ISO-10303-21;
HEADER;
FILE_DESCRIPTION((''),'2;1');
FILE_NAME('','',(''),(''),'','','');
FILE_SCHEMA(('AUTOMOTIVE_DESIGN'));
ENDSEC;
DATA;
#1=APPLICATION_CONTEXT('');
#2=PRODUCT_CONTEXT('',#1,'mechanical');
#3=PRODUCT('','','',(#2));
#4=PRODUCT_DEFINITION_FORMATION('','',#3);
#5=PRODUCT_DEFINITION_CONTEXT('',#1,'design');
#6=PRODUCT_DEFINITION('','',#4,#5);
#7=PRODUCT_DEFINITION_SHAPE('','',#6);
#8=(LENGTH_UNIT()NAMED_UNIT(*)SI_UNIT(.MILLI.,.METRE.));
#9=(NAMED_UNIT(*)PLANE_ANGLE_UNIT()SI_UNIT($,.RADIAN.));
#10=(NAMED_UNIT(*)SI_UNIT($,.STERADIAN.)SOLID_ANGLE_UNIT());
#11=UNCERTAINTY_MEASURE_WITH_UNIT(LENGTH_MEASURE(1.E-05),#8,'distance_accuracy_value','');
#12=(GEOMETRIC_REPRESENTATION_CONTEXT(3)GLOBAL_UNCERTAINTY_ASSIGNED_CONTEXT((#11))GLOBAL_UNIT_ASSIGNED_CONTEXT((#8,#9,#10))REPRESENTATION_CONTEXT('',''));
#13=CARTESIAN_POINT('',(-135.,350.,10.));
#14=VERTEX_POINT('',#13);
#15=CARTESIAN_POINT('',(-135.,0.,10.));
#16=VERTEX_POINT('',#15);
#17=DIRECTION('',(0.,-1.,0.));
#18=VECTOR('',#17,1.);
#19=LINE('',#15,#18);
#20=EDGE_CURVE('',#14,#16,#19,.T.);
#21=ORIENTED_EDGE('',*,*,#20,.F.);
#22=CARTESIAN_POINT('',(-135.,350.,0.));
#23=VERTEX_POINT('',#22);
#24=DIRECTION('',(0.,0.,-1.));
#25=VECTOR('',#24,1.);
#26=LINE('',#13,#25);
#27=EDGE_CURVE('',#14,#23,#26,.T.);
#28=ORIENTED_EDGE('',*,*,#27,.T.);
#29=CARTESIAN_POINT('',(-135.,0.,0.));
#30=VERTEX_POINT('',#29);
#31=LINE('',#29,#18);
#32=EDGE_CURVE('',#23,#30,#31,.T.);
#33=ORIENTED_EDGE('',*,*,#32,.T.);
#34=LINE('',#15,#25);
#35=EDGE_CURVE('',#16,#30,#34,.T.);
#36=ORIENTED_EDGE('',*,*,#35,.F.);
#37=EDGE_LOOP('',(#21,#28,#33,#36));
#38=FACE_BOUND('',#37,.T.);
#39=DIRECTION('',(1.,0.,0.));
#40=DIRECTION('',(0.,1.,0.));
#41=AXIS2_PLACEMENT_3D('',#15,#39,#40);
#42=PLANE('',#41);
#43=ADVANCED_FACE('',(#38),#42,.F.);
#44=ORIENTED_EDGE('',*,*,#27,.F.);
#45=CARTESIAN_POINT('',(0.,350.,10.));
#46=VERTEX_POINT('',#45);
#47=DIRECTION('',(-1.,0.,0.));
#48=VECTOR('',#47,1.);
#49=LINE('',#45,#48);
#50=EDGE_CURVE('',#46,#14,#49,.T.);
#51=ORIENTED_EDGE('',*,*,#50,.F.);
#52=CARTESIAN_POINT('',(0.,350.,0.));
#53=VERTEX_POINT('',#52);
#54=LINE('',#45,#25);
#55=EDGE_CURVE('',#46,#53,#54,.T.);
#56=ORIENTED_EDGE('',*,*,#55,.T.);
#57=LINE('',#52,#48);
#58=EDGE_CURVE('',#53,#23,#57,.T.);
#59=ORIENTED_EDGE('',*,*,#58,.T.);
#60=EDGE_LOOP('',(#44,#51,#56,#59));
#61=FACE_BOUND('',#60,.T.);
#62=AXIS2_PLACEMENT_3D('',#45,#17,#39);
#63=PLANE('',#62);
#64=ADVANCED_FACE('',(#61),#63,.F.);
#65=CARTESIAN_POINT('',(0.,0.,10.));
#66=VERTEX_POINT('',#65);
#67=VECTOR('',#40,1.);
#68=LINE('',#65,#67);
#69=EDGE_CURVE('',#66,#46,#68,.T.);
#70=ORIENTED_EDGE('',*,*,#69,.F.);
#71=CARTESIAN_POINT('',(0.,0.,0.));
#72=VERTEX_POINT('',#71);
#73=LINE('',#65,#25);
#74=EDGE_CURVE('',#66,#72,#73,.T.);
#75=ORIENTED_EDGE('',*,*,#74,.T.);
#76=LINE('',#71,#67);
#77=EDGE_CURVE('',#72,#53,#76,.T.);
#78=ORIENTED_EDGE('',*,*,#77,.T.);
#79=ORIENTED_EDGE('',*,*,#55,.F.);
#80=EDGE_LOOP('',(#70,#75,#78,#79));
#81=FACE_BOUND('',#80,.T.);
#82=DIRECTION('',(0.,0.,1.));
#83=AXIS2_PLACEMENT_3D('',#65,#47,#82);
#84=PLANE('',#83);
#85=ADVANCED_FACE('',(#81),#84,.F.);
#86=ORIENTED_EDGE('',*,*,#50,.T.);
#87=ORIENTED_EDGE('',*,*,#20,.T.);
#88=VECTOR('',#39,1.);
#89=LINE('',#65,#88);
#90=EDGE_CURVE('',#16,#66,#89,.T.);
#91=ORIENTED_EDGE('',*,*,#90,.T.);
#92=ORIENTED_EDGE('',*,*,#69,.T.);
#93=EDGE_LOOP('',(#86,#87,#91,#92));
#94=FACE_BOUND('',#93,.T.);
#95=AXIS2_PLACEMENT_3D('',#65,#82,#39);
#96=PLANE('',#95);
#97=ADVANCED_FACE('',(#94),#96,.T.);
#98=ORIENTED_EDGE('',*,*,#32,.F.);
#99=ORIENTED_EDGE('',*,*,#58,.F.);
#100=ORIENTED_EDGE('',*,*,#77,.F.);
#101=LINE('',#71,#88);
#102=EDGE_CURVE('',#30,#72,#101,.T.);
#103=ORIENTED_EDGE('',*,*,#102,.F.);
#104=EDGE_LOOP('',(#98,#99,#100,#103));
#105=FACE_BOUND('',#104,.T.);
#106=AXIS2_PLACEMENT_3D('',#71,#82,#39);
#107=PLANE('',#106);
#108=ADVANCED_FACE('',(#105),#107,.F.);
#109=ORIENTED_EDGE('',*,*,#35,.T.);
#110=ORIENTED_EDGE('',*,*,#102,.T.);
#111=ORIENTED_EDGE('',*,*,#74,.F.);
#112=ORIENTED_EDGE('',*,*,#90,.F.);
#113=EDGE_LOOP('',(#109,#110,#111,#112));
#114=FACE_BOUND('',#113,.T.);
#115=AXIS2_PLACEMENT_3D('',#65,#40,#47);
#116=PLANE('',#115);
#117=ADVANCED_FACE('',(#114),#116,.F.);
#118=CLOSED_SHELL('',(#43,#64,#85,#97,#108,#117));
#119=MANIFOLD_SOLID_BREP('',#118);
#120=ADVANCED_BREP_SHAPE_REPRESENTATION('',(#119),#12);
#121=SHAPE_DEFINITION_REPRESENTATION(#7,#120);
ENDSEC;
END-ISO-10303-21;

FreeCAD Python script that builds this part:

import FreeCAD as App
import Part
import Sketcher

V = App.Vector
Q = App.Units.Quantity

doc = App.newDocument("Part")
body = doc.addObject("PartDesign::Body", "Body")

sketch1 = doc.addObject("Sketcher::SketchObject", "Sketch")
body.addObject(sketch1)
sketch1.AttachmentSupport = (doc.XY_Plane, [""])
sketch1.MapMode = "FlatFace"
sketch1.addGeometry([
    Part.LineSegment(V(-135, 350, 0), V(-135, 0, 0)),
    Part.LineSegment(V(-135, 0, 0), V(0, 0, 0)),
    Part.LineSegment(V(0, 0, 0), V(0, 350, 0)),
    Part.LineSegment(V(0, 350, 0), V(-135, 350, 0)),
], False)
sketch1.addConstraint([
    Sketcher.Constraint("Coincident", 0, 2, 1, 1),
    Sketcher.Constraint("Coincident", 1, 2, 2, 1),
    Sketcher.Constraint("Coincident", 2, 2, 3, 1),
    Sketcher.Constraint("Coincident", 3, 2, 0, 1),
    Sketcher.Constraint("Vertical", 0),
    Sketcher.Constraint("Horizontal", 1),
    Sketcher.Constraint("Vertical", 2),
    Sketcher.Constraint("Horizontal", 3),
    Sketcher.Constraint("Coincident", 1, 2, -1, 1),
    Sketcher.Constraint("DistanceX", 1, 1, 1, 2, Q("135 mm")),
    Sketcher.Constraint("DistanceY", 0, 2, 0, 1, Q("350 mm")),
])
pad1 = doc.addObject("PartDesign::Pad", "Pad")
body.addObject(pad1)
pad1.Profile = sketch1
pad1.Length = 10

doc.recompute()
